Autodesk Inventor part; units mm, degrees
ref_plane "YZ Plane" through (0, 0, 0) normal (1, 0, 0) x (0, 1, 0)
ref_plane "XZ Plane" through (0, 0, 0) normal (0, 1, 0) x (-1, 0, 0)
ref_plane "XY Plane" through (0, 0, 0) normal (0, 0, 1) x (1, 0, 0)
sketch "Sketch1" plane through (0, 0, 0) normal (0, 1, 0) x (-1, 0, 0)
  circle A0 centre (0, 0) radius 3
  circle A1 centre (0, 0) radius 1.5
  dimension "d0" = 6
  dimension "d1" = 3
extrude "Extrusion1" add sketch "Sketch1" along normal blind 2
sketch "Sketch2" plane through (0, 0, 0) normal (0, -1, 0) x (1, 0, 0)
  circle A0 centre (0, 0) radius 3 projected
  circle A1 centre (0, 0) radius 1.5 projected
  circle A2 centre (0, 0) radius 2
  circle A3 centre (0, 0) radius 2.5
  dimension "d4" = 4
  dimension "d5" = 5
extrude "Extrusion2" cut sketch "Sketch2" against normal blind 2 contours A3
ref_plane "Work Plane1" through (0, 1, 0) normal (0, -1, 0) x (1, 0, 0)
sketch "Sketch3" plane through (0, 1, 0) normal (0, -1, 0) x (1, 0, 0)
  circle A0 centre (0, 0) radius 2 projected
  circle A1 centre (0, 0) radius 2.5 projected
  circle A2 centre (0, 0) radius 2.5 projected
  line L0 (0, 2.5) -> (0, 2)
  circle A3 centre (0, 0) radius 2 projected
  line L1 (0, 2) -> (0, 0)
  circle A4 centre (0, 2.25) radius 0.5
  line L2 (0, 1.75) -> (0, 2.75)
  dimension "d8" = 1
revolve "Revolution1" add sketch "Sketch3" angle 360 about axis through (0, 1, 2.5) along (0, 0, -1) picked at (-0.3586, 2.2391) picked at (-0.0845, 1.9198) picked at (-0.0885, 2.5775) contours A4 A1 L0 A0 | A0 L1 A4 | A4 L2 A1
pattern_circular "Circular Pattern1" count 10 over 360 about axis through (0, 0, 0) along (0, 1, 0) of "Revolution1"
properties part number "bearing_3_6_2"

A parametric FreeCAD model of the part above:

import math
import FreeCAD as App
import Part
import Sketcher

doc = App.newDocument("Part")
body = doc.addObject("PartDesign::Body", "Body")
body.AllowCompound = True

# Sketch on XZ plane
sketch1 = body.newObject("Sketcher::SketchObject", "Sketch")
sketch1.AttachmentSupport = (doc.getObject("XZ_Plane"), [""])
sketch1.MapMode = "FlatFace"
sketch1.addGeometry(Part.Circle(App.Vector(0, 0, 0), App.Vector(0, 0, 1), 3), False)
sketch1.addGeometry(Part.Circle(App.Vector(0, 0, 0), App.Vector(0, 0, 1), 1.5), False)
sketch1.addConstraint(Sketcher.Constraint("Coincident", 0, 3, -1, 1))
sketch1.addConstraint(Sketcher.Constraint("Coincident", 1, 3, -1, 1))
sketch1.addConstraint(Sketcher.Constraint("Diameter", 0, 6.0))
sketch1.addConstraint(Sketcher.Constraint("Diameter", 1, 3.0))
pad1 = body.newObject("PartDesign::Pad", "Pad")
pad1.Profile = sketch1
pad1.Length = 2
pad1.Reversed = True

# Sketch on XZ plane
sketch2 = body.newObject("Sketcher::SketchObject", "Sketch001")
sketch2.AttachmentSupport = (doc.getObject("XZ_Plane"), [""])
sketch2.MapMode = "FlatFace"
sketch2.addGeometry(Part.Circle(App.Vector(0, 0, 0), App.Vector(0, 0, 1), 2.5), False)
sketch2.addGeometry(Part.Circle(App.Vector(0, 0, 0), App.Vector(0, 0, 1), 2), False)
sketch2.addConstraint(Sketcher.Constraint("Coincident", 0, 3, -1, 1))
sketch2.addConstraint(Sketcher.Constraint("Coincident", 1, 3, -1, 1))
sketch2.addConstraint(Sketcher.Constraint("Diameter", 0, 5.0))
sketch2.addConstraint(Sketcher.Constraint("Diameter", 1, 4.0))
pocket1 = body.newObject("PartDesign::Pocket", "Pocket")
pocket1.Profile = sketch2
pocket1.Length = 2

# Sketch on XZ plane
sketch3 = body.newObject("Sketcher::SketchObject", "Sketch002")
sketch3.AttachmentSupport = (doc.getObject("XZ_Plane"), [""])
sketch3.MapMode = "FlatFace"
sketch3.AttachmentOffset = App.Placement(App.Vector(0, 0, -1), App.Rotation())
sketch3.addGeometry(Part.LineSegment(App.Vector(0, 1.8, 0), App.Vector(0, 2.8, 0)), False)
sketch3.addGeometry(Part.ArcOfCircle(Part.Circle(App.Vector(0, 2.2, 0), App.Vector(0, 0, 1), 0.5), math.radians(90), math.radians(270)), False)
sketch3.addConstraint(Sketcher.Constraint("Coincident", 0, 1, 1, 2))
sketch3.addConstraint(Sketcher.Constraint("Coincident", 1, 1, 0, 2))
sketch3.addConstraint(Sketcher.Constraint("Vertical", 0))
sketch3.addConstraint(Sketcher.Constraint("PointOnObject", 1, 3, -2))
sketch3.addConstraint(Sketcher.Constraint("PointOnObject", 0, 1, -2))
sketch3.addConstraint(Sketcher.Constraint("Radius", 1, 0.5))
sketch3.addConstraint(Sketcher.Constraint("DistanceY", -1, 1, 1, 3, 2.25))
revolution = body.newObject("PartDesign::Revolution", "Revolution")
revolution.Profile = sketch3
revolution.ReferenceAxis = (sketch3, ["V_Axis"])
revolution.Angle = 360
doc.recompute()

polarpattern = body.newObject("PartDesign::PolarPattern", "PolarPattern")
polarpattern.Originals = [revolution]
polarpattern.Axis = (doc.getObject("Y_Axis"), [""])
polarpattern.Angle = 360
polarpattern.Occurrences = 10
body.Tip = polarpattern

doc.recompute()
